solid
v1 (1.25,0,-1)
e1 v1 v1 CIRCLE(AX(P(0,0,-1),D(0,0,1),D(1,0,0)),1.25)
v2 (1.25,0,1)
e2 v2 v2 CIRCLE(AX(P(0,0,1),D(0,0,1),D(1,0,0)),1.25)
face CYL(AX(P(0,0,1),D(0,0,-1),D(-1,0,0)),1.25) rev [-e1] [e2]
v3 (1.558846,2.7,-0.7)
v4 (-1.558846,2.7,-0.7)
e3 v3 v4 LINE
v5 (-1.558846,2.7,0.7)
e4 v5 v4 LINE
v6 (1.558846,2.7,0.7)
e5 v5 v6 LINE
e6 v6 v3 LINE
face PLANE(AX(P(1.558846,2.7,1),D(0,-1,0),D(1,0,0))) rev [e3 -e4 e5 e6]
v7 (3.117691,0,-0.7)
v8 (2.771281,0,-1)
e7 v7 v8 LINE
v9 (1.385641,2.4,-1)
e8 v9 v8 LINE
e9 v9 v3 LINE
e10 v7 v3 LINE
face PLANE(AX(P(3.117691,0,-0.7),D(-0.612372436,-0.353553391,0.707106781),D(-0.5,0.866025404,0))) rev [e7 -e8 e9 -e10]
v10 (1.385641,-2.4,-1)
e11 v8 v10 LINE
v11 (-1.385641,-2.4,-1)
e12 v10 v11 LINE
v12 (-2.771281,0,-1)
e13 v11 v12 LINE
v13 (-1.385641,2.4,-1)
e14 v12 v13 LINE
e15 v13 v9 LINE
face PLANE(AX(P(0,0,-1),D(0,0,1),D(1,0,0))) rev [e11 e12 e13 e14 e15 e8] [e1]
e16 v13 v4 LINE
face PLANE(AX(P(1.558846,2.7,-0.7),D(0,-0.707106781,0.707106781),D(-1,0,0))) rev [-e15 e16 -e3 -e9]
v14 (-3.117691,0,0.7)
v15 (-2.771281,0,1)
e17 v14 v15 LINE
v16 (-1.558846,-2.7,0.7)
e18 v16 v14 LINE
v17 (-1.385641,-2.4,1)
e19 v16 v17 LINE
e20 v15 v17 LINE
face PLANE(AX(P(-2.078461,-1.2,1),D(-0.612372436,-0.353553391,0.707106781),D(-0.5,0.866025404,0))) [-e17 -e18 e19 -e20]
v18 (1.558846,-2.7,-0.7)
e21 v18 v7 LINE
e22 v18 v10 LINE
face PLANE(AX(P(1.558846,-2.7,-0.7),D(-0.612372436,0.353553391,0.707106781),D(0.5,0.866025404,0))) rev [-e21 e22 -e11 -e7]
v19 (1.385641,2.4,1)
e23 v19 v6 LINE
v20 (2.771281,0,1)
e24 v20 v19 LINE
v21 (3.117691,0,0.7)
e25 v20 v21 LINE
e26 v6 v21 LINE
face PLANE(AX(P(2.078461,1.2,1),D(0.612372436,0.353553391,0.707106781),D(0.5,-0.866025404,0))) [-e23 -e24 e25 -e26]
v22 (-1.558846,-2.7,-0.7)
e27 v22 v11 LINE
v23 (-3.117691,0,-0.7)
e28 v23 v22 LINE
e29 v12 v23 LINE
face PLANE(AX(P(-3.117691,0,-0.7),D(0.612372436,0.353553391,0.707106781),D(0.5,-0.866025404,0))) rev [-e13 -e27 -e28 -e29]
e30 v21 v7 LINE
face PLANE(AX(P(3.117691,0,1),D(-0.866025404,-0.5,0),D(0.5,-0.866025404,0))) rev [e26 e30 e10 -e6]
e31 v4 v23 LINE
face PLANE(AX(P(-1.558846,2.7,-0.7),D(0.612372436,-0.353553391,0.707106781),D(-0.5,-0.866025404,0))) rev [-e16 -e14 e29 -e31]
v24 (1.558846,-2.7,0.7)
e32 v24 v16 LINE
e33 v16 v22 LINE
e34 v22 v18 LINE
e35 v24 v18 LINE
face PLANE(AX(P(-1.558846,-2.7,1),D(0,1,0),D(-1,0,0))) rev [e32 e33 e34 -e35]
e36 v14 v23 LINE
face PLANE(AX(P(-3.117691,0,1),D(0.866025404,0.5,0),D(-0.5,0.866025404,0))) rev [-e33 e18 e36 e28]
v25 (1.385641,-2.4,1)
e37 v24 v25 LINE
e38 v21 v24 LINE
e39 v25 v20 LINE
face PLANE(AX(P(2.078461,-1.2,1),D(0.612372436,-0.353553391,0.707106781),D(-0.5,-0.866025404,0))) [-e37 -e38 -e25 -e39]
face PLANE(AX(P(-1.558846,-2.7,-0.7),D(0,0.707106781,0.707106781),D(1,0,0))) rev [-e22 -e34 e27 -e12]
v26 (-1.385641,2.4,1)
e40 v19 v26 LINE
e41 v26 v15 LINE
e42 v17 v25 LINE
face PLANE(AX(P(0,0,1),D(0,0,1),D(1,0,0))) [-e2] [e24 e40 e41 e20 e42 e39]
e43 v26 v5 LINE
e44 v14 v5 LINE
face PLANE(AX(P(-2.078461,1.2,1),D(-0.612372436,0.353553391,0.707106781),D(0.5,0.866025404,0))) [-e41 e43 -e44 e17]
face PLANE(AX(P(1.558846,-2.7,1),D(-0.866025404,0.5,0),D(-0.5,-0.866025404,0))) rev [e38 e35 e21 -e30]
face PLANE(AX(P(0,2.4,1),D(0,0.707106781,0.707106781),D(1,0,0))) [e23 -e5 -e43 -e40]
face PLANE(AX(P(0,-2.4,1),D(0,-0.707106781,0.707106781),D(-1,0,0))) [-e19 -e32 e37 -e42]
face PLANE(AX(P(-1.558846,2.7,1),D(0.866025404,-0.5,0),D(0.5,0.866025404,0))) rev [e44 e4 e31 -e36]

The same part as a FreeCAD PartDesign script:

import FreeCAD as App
import Part
import Sketcher
from FreeCAD import Vector
Q = App.Units.Quantity


def edges_at(feature, points):
    """Names of the edges that pass closest to the given points."""
    edges = feature.Shape.Edges
    near = lambda p: min(range(len(edges)), key=lambda i: edges[i].distToShape(Part.Vertex(*p))[0])
    return sorted({f"Edge{near(p) + 1}" for p in points})


def add_polygon(sketch, points):
    """Adds a closed chain of lines whose ends are joined by coincident constraints."""
    first, n = sketch.GeometryCount, len(points)
    for a, b in zip(points, points[1:] + points[:1]):
        sketch.addGeometry(Part.LineSegment(App.Vector(*a, 0), App.Vector(*b, 0)), False)
    for i in range(n):
        sketch.addConstraint(Sketcher.Constraint("Coincident", first + i, 2, first + (i + 1) % n, 1))

doc = App.newDocument("Part")
body = doc.addObject("PartDesign::Body", "Body")

# Sketch on XY plane
sketch1 = body.newObject("Sketcher::SketchObject", "Sketch")
sketch1.AttachmentSupport = (doc.getObject("XY_Plane"), [""])
sketch1.MapMode = "FlatFace"
add_polygon(sketch1, [(3.1, 0), (1.6, 2.7), (-1.6, 2.7), (-3.1, 0), (-1.6, -2.7), (1.6, -2.7)])  # lines 0-5
sketch1.addGeometry(Part.Circle(Vector(0, 0, 0), Vector(0, 0, 1), 1.2), False)  # 6
sketch1.addConstraint([
    Sketcher.Constraint("Horizontal", 1),
    Sketcher.Constraint("Horizontal", 4),
    Sketcher.Constraint("Coincident", 6, 3, -1, 1),
    Sketcher.Constraint("Symmetric", 0, 2, 3, 2, -1, 1),
    Sketcher.Constraint("Symmetric", 2, 2, 5, 2, -1, 1),
    Sketcher.Constraint("PointOnObject", 2, 2, -1),
    Sketcher.Constraint("Parallel", 2, 5),
    Sketcher.Constraint("Vertical", 1, 2, 3, 2),
    Sketcher.Constraint("Diameter", 6, Q("2.5 mm")),
    Sketcher.Constraint("Angle", 0, Q("120 deg")),
    Sketcher.Constraint("DistanceY", -1, 1, 0, 2, Q("2.7 mm")),
    Sketcher.Constraint("DistanceX", 1, 2, 1, 1, Q("3.117691 mm")),
])
pad1 = body.newObject("PartDesign::Pad", "Pad")
pad1.Profile = sketch1
pad1.Length = 2
pad1.Midplane = True
doc.recompute()

chamfer = body.newObject("PartDesign::Chamfer", "Chamfer")
chamfer.Base = (pad1, edges_at(pad1, [
    (0, 2.7, 1),
    (-2.338, 1.35, 1),
    (-2.338, -1.35, 1),
    (0, -2.7, 1),
    (2.338, -1.35, 1),
    (0, -2.7, -1),
    (-2.338, -1.35, -1),
    (-2.338, 1.35, -1),
    (0, 2.7, -1),
    (2.338, 1.35, -1),
    (2.338, -1.35, -1),
    (2.338, 1.35, 1),
]))
chamfer.Size = 0.3

doc.recompute()
